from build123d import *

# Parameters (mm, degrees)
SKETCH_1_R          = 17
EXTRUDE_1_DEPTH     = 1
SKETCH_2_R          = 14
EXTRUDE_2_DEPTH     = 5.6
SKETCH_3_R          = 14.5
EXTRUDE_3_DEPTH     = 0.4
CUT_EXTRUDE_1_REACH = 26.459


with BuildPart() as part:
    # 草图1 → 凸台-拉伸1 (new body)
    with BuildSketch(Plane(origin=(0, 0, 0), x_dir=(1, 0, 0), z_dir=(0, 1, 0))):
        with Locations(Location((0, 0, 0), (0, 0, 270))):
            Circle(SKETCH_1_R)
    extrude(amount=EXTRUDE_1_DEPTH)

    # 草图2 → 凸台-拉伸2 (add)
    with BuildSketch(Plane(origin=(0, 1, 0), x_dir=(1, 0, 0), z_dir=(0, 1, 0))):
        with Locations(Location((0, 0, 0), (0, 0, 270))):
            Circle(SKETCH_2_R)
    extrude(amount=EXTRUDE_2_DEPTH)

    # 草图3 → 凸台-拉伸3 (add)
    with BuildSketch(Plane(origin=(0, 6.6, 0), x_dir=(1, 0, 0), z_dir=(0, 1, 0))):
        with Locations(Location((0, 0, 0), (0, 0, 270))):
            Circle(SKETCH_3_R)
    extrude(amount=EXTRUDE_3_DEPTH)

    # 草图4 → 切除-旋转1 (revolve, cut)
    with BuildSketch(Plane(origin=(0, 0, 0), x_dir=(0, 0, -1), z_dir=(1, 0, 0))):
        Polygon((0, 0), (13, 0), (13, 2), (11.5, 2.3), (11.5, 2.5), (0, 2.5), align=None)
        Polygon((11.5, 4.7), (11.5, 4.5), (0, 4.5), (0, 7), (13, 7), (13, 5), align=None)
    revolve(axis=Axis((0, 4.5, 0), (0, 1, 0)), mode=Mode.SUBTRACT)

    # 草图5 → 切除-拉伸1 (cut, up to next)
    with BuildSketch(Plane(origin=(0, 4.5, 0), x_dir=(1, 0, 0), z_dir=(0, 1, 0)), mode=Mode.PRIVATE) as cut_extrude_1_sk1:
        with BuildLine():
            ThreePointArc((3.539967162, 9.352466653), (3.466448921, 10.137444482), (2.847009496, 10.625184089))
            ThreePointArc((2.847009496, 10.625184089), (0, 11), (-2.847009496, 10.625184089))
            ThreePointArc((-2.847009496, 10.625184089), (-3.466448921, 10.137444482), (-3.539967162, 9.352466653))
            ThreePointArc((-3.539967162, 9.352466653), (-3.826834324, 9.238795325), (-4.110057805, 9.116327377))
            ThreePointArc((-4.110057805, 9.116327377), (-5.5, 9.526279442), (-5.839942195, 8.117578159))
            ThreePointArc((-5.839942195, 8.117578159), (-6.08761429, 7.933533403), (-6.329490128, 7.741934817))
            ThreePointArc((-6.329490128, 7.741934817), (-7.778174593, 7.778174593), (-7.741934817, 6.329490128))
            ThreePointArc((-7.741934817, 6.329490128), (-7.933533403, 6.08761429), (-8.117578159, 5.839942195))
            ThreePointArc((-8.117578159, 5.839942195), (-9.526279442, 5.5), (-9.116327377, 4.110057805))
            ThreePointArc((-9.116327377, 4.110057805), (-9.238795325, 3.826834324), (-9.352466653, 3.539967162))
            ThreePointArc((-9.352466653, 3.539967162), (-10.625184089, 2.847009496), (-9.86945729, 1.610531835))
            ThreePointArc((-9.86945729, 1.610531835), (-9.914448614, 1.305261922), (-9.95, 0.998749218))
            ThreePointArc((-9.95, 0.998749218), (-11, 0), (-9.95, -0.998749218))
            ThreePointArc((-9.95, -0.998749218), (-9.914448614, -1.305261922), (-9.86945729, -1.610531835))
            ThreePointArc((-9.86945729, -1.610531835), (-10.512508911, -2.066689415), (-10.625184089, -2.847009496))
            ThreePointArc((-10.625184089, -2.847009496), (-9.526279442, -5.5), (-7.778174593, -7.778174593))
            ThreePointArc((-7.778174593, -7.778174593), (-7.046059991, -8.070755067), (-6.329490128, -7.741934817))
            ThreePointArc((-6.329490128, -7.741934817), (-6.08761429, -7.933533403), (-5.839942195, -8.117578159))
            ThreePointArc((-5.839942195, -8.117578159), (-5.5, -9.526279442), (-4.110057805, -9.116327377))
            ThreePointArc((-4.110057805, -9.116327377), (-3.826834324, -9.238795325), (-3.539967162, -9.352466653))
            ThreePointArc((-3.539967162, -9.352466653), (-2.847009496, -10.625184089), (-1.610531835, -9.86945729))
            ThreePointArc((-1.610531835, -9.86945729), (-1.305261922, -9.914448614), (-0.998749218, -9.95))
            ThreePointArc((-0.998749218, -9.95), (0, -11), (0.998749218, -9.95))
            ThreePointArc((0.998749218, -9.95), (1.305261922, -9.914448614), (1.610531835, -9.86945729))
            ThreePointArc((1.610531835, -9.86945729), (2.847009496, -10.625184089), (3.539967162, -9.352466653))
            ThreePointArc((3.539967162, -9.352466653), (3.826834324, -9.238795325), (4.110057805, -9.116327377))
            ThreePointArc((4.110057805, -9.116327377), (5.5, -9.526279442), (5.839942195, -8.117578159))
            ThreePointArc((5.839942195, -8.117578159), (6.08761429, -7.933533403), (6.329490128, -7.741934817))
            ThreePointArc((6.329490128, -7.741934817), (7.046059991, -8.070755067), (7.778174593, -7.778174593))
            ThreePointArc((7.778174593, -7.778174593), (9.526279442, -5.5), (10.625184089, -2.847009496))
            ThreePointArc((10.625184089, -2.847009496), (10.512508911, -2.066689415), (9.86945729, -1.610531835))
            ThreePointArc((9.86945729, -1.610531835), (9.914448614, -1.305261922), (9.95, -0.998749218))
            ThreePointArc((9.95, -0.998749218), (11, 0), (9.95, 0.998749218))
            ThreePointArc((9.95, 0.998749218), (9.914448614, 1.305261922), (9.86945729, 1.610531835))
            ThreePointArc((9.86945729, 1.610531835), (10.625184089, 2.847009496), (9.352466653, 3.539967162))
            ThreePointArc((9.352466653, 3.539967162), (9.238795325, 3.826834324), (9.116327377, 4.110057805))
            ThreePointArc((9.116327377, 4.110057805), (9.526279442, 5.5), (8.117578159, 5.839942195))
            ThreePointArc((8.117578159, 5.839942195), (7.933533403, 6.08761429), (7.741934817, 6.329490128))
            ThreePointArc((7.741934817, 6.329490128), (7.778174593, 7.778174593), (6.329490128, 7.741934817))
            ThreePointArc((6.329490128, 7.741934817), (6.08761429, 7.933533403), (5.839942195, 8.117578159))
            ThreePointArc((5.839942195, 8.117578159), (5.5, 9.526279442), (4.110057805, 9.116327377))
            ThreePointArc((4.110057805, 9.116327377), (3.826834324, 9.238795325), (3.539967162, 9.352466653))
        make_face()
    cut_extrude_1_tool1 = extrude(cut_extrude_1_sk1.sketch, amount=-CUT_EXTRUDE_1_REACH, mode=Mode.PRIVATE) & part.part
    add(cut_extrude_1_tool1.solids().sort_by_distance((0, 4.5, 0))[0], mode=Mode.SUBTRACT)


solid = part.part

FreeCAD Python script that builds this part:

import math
import FreeCAD as App
import Part
import Sketcher


def add_polygon(sketch, points):
    """Adds a closed chain of lines whose ends are joined by coincident constraints."""
    first, n = sketch.GeometryCount, len(points)
    for a, b in zip(points, points[1:] + points[:1]):
        sketch.addGeometry(Part.LineSegment(App.Vector(*a, 0), App.Vector(*b, 0)), False)
    for i in range(n):
        sketch.addConstraint(Sketcher.Constraint("Coincident", first + i, 2, first + (i + 1) % n, 1))

doc = App.newDocument("Part")
body = doc.addObject("PartDesign::Body", "Body")

sketch1 = body.newObject("Sketcher::SketchObject", "Sketch")
sketch1.AttachmentSupport = (doc.getObject("XZ_Plane"), [""])
sketch1.MapMode = "FlatFace"
sketch1.addGeometry(Part.Circle(App.Vector(0, 0, 0), App.Vector(0, 0, 1), 17), False)
sketch1.addConstraint([
    Sketcher.Constraint("Coincident", 0, 3, -1, 1),
    Sketcher.Constraint("Diameter", 0, 34.0),
])
pad1 = body.newObject("PartDesign::Pad", "Pad")
pad1.Profile = sketch1
pad1.Length = 1
pad1.Reversed = True

sketch2 = body.newObject("Sketcher::SketchObject", "Sketch001")
sketch2.AttachmentSupport = (doc.getObject("XZ_Plane"), [""])
sketch2.MapMode = "FlatFace"
sketch2.AttachmentOffset = App.Placement(App.Vector(0, 0, -1), App.Rotation())
sketch2.addGeometry(Part.Circle(App.Vector(0, 0, 0), App.Vector(0, 0, 1), 14), False)
sketch2.addConstraint([
    Sketcher.Constraint("Coincident", 0, 3, -1, 1),
    Sketcher.Constraint("Diameter", 0, 28.0),
])
pad2 = body.newObject("PartDesign::Pad", "Pad001")
pad2.Profile = sketch2
pad2.Length = 5.6
pad2.Reversed = True

sketch3 = body.newObject("Sketcher::SketchObject", "Sketch002")
sketch3.AttachmentSupport = (doc.getObject("XZ_Plane"), [""])
sketch3.MapMode = "FlatFace"
sketch3.AttachmentOffset = App.Placement(App.Vector(0, 0, -6.6), App.Rotation())
sketch3.addGeometry(Part.Circle(App.Vector(0, 0, 0), App.Vector(0, 0, 1), 14), False)
sketch3.addConstraint([
    Sketcher.Constraint("Coincident", 0, 3, -1, 1),
    Sketcher.Constraint("Diameter", 0, 29.0),
])
pad3 = body.newObject("PartDesign::Pad", "Pad002")
pad3.Profile = sketch3
pad3.Length = 0.4
pad3.Reversed = True

sketch4 = body.newObject("Sketcher::SketchObject", "Sketch003")
sketch4.AttachmentSupport = (doc.getObject("YZ_Plane"), [""])
sketch4.MapMode = "FlatFace"
add_polygon(sketch4, [(0, 0), (0, -13), (2, -13), (2.3, -11.5), (2.5, -11.5), (2.5, 0)])
add_polygon(sketch4, [(4.5, -11.5), (4.7, -11.5), (5, -13), (7, -13), (7, 0), (4.5, 0)])
sketch4.addConstraint([
    Sketcher.Constraint("Vertical", 0),
    Sketcher.Constraint("Horizontal", 1),
    Sketcher.Constraint("Horizontal", 3),
    Sketcher.Constraint("Vertical", 4),
    Sketcher.Constraint("Horizontal", 5),
    Sketcher.Constraint("Horizontal", 6),
    Sketcher.Constraint("Horizontal", 8),
    Sketcher.Constraint("Vertical", 9),
    Sketcher.Constraint("Horizontal", 10),
    Sketcher.Constraint("Vertical", 11),
    Sketcher.Constraint("Coincident", 5, 2, -1, 1),
    Sketcher.Constraint("PointOnObject", 9, 2, -1),
    Sketcher.Constraint("Horizontal", 3, 2, 6, 2),
    Sketcher.Constraint("Horizontal", 1, 2, 7, 2),
    Sketcher.Constraint("Equal", 3, 6),
    Sketcher.Constraint("Equal", 1, 8),
    Sketcher.Constraint("Equal", 5, 10),
    Sketcher.Constraint("DistanceX", 1, 1, 1, 2, 2.0),
    Sketcher.Constraint("DistanceY", 0, 2, 0, 1, 13.0),
    Sketcher.Constraint("DistanceX", 3, 1, 3, 2, 0.2),
    Sketcher.Constraint("DistanceX", 5, 2, 5, 1, 2.5),
    Sketcher.Constraint("DistanceY", 4, 1, 4, 2, 11.5),
    Sketcher.Constraint("DistanceX", -1, 1, 7, 2, 5.0),
])
groove = body.newObject("PartDesign::Groove", "Groove")
groove.Profile = sketch4
groove.ReferenceAxis = (sketch4, ["H_Axis"])
groove.Angle = 360

sketch5 = body.newObject("Sketcher::SketchObject", "Sketch004")
sketch5.AttachmentSupport = (doc.getObject("XZ_Plane"), [""])
sketch5.MapMode = "FlatFace"
sketch5.AttachmentOffset = App.Placement(App.Vector(0, 0, -4.5), App.Rotation())
sketch5.addGeometry([
    Part.ArcOfCircle(Part.Circle(App.Vector(2.6, -9.7, 0), App.Vector(0, 0, 1), 1), math.radians(-75), math.radians(18)),
    Part.ArcOfCircle(Part.Circle(App.Vector(0, 0, 0), App.Vector(0, 0, 1), 11), math.radians(-105), math.radians(-75)),
    Part.ArcOfCircle(Part.Circle(App.Vector(-2.6, -9.7, 0), App.Vector(0, 0, 1), 1), math.radians(162), math.radians(255)),
    Part.ArcOfCircle(Part.Circle(App.Vector(0, 0, 0), App.Vector(0, 0, 1), 10), math.radians(-114.27), math.radians(-110.73)),
    Part.ArcOfCircle(Part.Circle(App.Vector(-5, -8.7, 0), App.Vector(0, 0, 1), 1), math.radians(147), math.radians(333)),
    Part.ArcOfCircle(Part.Circle(App.Vector(0, 0, 0), App.Vector(0, 0, 1), 10), math.radians(-129.27), math.radians(-125.73)),
    Part.ArcOfCircle(Part.Circle(App.Vector(-7.1, -7.1, 0), App.Vector(0, 0, 1), 1), math.radians(132), math.radians(318)),
    Part.ArcOfCircle(Part.Circle(App.Vector(0, 0, 0), App.Vector(0, 0, 1), 10), math.radians(-144.27), math.radians(-140.73)),
    Part.ArcOfCircle(Part.Circle(App.Vector(-8.7, -5, 0), App.Vector(0, 0, 1), 1), math.radians(117), math.radians(303)),
    Part.ArcOfCircle(Part.Circle(App.Vector(0, 0, 0), App.Vector(0, 0, 1), 10), math.radians(-159.27), math.radians(-155.73)),
    Part.ArcOfCircle(Part.Circle(App.Vector(-9.7, -2.6, 0), App.Vector(0, 0, 1), 1), math.radians(102), math.radians(288)),
    Part.ArcOfCircle(Part.Circle(App.Vector(0, 0, 0), App.Vector(0, 0, 1), 10), math.radians(-174.27), math.radians(-170.73)),
    Part.ArcOfCircle(Part.Circle(App.Vector(-10, 0, 0), App.Vector(0, 0, 1), 1), math.radians(87), math.radians(273)),
    Part.ArcOfCircle(Part.Circle(App.Vector(0, 0, 0), App.Vector(0, 0, 1), 10), math.radians(170.73), math.radians(174.27)),
    Part.ArcOfCircle(Part.Circle(App.Vector(-9.7, 2.6, 0), App.Vector(0, 0, 1), 1), math.radians(165), math.radians(258)),
    Part.ArcOfCircle(Part.Circle(App.Vector(0, 0, 0), App.Vector(0, 0, 1), 11), math.radians(135), math.radians(165)),
    Part.ArcOfCircle(Part.Circle(App.Vector(-7.1, 7.1, 0), App.Vector(0, 0, 1), 1), math.radians(42), math.radians(135)),
    Part.ArcOfCircle(Part.Circle(App.Vector(0, 0, 0), App.Vector(0, 0, 1), 10), math.radians(125.73), math.radians(129.27)),
    Part.ArcOfCircle(Part.Circle(App.Vector(-5, 8.7, 0), App.Vector(0, 0, 1), 1), math.radians(27), math.radians(213)),
    Part.ArcOfCircle(Part.Circle(App.Vector(0, 0, 0), App.Vector(0, 0, 1), 10), math.radians(110.73), math.radians(114.27)),
    Part.ArcOfCircle(Part.Circle(App.Vector(-2.6, 9.7, 0), App.Vector(0, 0, 1), 1), math.radians(12), math.radians(198)),
    Part.ArcOfCircle(Part.Circle(App.Vector(0, 0, 0), App.Vector(0, 0, 1), 10), math.radians(95.73), math.radians(99.27)),
    Part.ArcOfCircle(Part.Circle(App.Vector(0, 10, 0), App.Vector(0, 0, 1), 1), math.radians(-3), math.radians(183)),
    Part.ArcOfCircle(Part.Circle(App.Vector(0, 0, 0), App.Vector(0, 0, 1), 10), math.radians(80.73), math.radians(84.27)),
    Part.ArcOfCircle(Part.Circle(App.Vector(2.6, 9.7, 0), App.Vector(0, 0, 1), 1), math.radians(-18), math.radians(168)),
    Part.ArcOfCircle(Part.Circle(App.Vector(0, 0, 0), App.Vector(0, 0, 1), 10), math.radians(65.73), math.radians(69.27)),
    Part.ArcOfCircle(Part.Circle(App.Vector(5, 8.7, 0), App.Vector(0, 0, 1), 1), math.radians(-33), math.radians(153)),
    Part.ArcOfCircle(Part.Circle(App.Vector(0, 0, 0), App.Vector(0, 0, 1), 10), math.radians(50.73), math.radians(54.27)),
    Part.ArcOfCircle(Part.Circle(App.Vector(7.1, 7.1, 0), App.Vector(0, 0, 1), 1), math.radians(45), math.radians(138)),
    Part.ArcOfCircle(Part.Circle(App.Vector(0, 0, 0), App.Vector(0, 0, 1), 11), math.radians(15), math.radians(45)),
    Part.ArcOfCircle(Part.Circle(App.Vector(9.7, 2.6, 0), App.Vector(0, 0, 1), 1), math.radians(-78), math.radians(15)),
    Part.ArcOfCircle(Part.Circle(App.Vector(0, 0, 0), App.Vector(0, 0, 1), 10), math.radians(5.73), math.radians(9.27)),
    Part.ArcOfCircle(Part.Circle(App.Vector(10, 0, 0), App.Vector(0, 0, 1), 1), math.radians(-93), math.radians(93)),
    Part.ArcOfCircle(Part.Circle(App.Vector(0, 0, 0), App.Vector(0, 0, 1), 10), math.radians(-9.27), math.radians(-5.73)),
    Part.ArcOfCircle(Part.Circle(App.Vector(9.7, -2.6, 0), App.Vector(0, 0, 1), 1), math.radians(-108), math.radians(78)),
    Part.ArcOfCircle(Part.Circle(App.Vector(0, 0, 0), App.Vector(0, 0, 1), 10), math.radians(-24.27), math.radians(-20.73)),
    Part.ArcOfCircle(Part.Circle(App.Vector(8.7, -5, 0), App.Vector(0, 0, 1), 1), math.radians(-123), math.radians(63)),
    Part.ArcOfCircle(Part.Circle(App.Vector(0, 0, 0), App.Vector(0, 0, 1), 10), math.radians(-39.27), math.radians(-35.73)),
    Part.ArcOfCircle(Part.Circle(App.Vector(7.1, -7.1, 0), App.Vector(0, 0, 1), 1), math.radians(-138), math.radians(48)),
    Part.ArcOfCircle(Part.Circle(App.Vector(0, 0, 0), App.Vector(0, 0, 1), 10), math.radians(-54.27), math.radians(-50.73)),
    Part.ArcOfCircle(Part.Circle(App.Vector(5, -8.7, 0), App.Vector(0, 0, 1), 1), math.radians(-153), math.radians(33)),
    Part.ArcOfCircle(Part.Circle(App.Vector(0, 0, 0), App.Vector(0, 0, 1), 10), math.radians(-69.27), math.radians(-65.73)),
], False)
sketch5.addConstraint([
    Sketcher.Constraint("Tangent", 0, 1, 1, 2),
    Sketcher.Constraint("Tangent", 1, 1, 2, 2),
    Sketcher.Constraint("Coincident", 2, 1, 3, 2),
    Sketcher.Constraint("Coincident", 3, 1, 4, 2),
    Sketcher.Constraint("Coincident", 4, 1, 5, 2),
    Sketcher.Constraint("Coincident", 5, 1, 6, 2),
    Sketcher.Constraint("Coincident", 6, 1, 7, 2),
    Sketcher.Constraint("Coincident", 7, 1, 8, 2),
    Sketcher.Constraint("Coincident", 8, 1, 9, 2),
    Sketcher.Constraint("Coincident", 9, 1, 10, 2),
    Sketcher.Constraint("Coincident", 10, 1, 11, 2),
    Sketcher.Constraint("Coincident", 11, 1, 12, 2),
    Sketcher.Constraint("Coincident", 12, 1, 13, 2),
    Sketcher.Constraint("Coincident", 13, 1, 14, 2),
    Sketcher.Constraint("Tangent", 14, 1, 15, 2),
    Sketcher.Constraint("Tangent", 15, 1, 16, 2),
    Sketcher.Constraint("Coincident", 16, 1, 17, 2),
    Sketcher.Constraint("Coincident", 17, 1, 18, 2),
    Sketcher.Constraint("Coincident", 18, 1, 19, 2),
    Sketcher.Constraint("Coincident", 19, 1, 20, 2),
    Sketcher.Constraint("Coincident", 20, 1, 21, 2),
    Sketcher.Constraint("Coincident", 21, 1, 22, 2),
    Sketcher.Constraint("Coincident", 22, 1, 23, 2),
    Sketcher.Constraint("Coincident", 23, 1, 24, 2),
    Sketcher.Constraint("Coincident", 24, 1, 25, 2),
    Sketcher.Constraint("Coincident", 25, 1, 26, 2),
    Sketcher.Constraint("Coincident", 26, 1, 27, 2),
    Sketcher.Constraint("Coincident", 27, 1, 28, 2),
    Sketcher.Constraint("Tangent", 28, 1, 29, 2),
    Sketcher.Constraint("Tangent", 29, 1, 30, 2),
    Sketcher.Constraint("Coincident", 30, 1, 31, 2),
    Sketcher.Constraint("Coincident", 31, 1, 32, 2),
    Sketcher.Constraint("Coincident", 32, 1, 33, 2),
    Sketcher.Constraint("Coincident", 33, 1, 34, 2),
    Sketcher.Constraint("Coincident", 34, 1, 35, 2),
    Sketcher.Constraint("Coincident", 35, 1, 36, 2),
    Sketcher.Constraint("Coincident", 36, 1, 37, 2),
    Sketcher.Constraint("Coincident", 37, 1, 38, 2),
    Sketcher.Constraint("Coincident", 38, 1, 39, 2),
    Sketcher.Constraint("Coincident", 39, 1, 40, 2),
    Sketcher.Constraint("Coincident", 40, 1, 41, 2),
    Sketcher.Constraint("Coincident", 41, 1, 0, 2),
    Sketcher.Constraint("Coincident", 1, 3, -1, 1),
    Sketcher.Constraint("Coincident", 3, 3, -1, 1),
    Sketcher.Constraint("Coincident", 5, 3, -1, 1),
    Sketcher.Constraint("Coincident", 7, 3, -1, 1),
    Sketcher.Constraint("Coincident", 9, 3, -1, 1),
    Sketcher.Constraint("Coincident", 11, 3, -1, 1),
    Sketcher.Constraint("Coincident", 13, 3, -1, 1),
    Sketcher.Constraint("Coincident", 15, 3, -1, 1),
    Sketcher.Constraint("Coincident", 17, 3, -1, 1),
    Sketcher.Constraint("Coincident", 19, 3, -1, 1),
    Sketcher.Constraint("Coincident", 21, 3, -1, 1),
    Sketcher.Constraint("Coincident", 23, 3, -1, 1),
    Sketcher.Constraint("Coincident", 25, 3, -1, 1),
    Sketcher.Constraint("Coincident", 27, 3, -1, 1),
    Sketcher.Constraint("Coincident", 29, 3, -1, 1),
    Sketcher.Constraint("Coincident", 31, 3, -1, 1),
    Sketcher.Constraint("Coincident", 33, 3, -1, 1),
    Sketcher.Constraint("Coincident", 35, 3, -1, 1),
    Sketcher.Constraint("Coincident", 37, 3, -1, 1),
    Sketcher.Constraint("Coincident", 39, 3, -1, 1),
    Sketcher.Constraint("Coincident", 41, 3, -1, 1),
    Sketcher.Constraint("Equal", 0, 2),
    Sketcher.Constraint("Equal", 2, 4),
    Sketcher.Constraint("Equal", 3, 5),
    Sketcher.Constraint("Equal", 4, 6),
    Sketcher.Constraint("Equal", 5, 7),
    Sketcher.Constraint("Equal", 6, 8),
    Sketcher.Constraint("Equal", 7, 9),
    Sketcher.Constraint("Equal", 8, 10),
    Sketcher.Constraint("Equal", 9, 11),
    Sketcher.Constraint("Equal", 10, 12),
    Sketcher.Constraint("Equal", 11, 13),
    Sketcher.Constraint("Equal", 12, 14),
    Sketcher.Constraint("Equal", 1, 15),
    Sketcher.Constraint("Equal", 14, 16),
    Sketcher.Constraint("Equal", 13, 17),
    Sketcher.Constraint("Equal", 16, 18),
    Sketcher.Constraint("Equal", 17, 19),
    Sketcher.Constraint("Equal", 18, 20),
    Sketcher.Constraint("Equal", 19, 21),
    Sketcher.Constraint("Equal", 20, 22),
    Sketcher.Constraint("Equal", 21, 23),
    Sketcher.Constraint("Equal", 22, 24),
    Sketcher.Constraint("Equal", 23, 25),
    Sketcher.Constraint("Equal", 24, 26),
    Sketcher.Constraint("Equal", 25, 27),
    Sketcher.Constraint("Equal", 26, 28),
    Sketcher.Constraint("Equal", 15, 29),
    Sketcher.Constraint("Equal", 28, 30),
    Sketcher.Constraint("Equal", 27, 31),
    Sketcher.Constraint("Equal", 30, 32),
    Sketcher.Constraint("Equal", 31, 33),
    Sketcher.Constraint("Equal", 32, 34),
    Sketcher.Constraint("Equal", 33, 35),
    Sketcher.Constraint("Equal", 34, 36),
    Sketcher.Constraint("Equal", 35, 37),
    Sketcher.Constraint("Equal", 36, 38),
    Sketcher.Constraint("Equal", 37, 39),
    Sketcher.Constraint("Equal", 38, 40),
    Sketcher.Constraint("Equal", 39, 41),
    Sketcher.Constraint("Symmetric", 0, 3, 20, 3, -1, 1),
    Sketcher.Constraint("Symmetric", 2, 3, 24, 3, -1, 1),
    Sketcher.Constraint("Symmetric", 4, 3, 26, 3, -1, 1),
    Sketcher.Constraint("Symmetric", 6, 3, 28, 3, -1, 1),
    Sketcher.Constraint("Symmetric", 10, 3, 30, 3, -1, 1),
    Sketcher.Constraint("Symmetric", 12, 3, 32, 3, -1, 1),
    Sketcher.Constraint("Symmetric", 14, 3, 34, 3, -1, 1),
    Sketcher.Constraint("Symmetric", 16, 3, 38, 3, -1, 1),
    Sketcher.Constraint("Symmetric", 18, 3, 40, 3, -1, 1),
    Sketcher.Constraint("Symmetric", 18, 3, 26, 3, -2),
    Sketcher.Constraint("Symmetric", 8, 3, 36, 3, -2),
    Sketcher.Constraint("PointOnObject", 12, 3, -1),
    Sketcher.Constraint("PointOnObject", 22, 3, -2),
    Sketcher.Constraint("Horizontal", 0, 3, 2, 3),
    Sketcher.Constraint("Horizontal", 16, 3, 28, 3),
    Sketcher.Constraint("Horizontal", 14, 3, 30, 3),
    Sketcher.Constraint("Radius", 0, 1.0),
    Sketcher.Constraint("Radius", 1, 11.0),
    Sketcher.Constraint("Radius", 3, 10.0),
    Sketcher.Constraint("DistanceX", 4, 3, -1, 1, 5.0),
    Sketcher.Constraint("DistanceY", 8, 3, -1, 1, 5.0),
    Sketcher.Constraint("DistanceX", 12, 3, -1, 1, 10.0),
    Sketcher.Constraint("DistanceY", -1, 1, 22, 3, 10.0),
    Sketcher.Constraint("DistanceX", -1, 1, 0, 3, 2.58819),
    Sketcher.Constraint("DistanceX", 10, 3, -1, 1, 9.659258),
    Sketcher.Constraint("DistanceY", 4, 1, -1, 1, 8.117578),
    Sketcher.Constraint("DistanceX", 5, 1, -1, 1, 6.32949),
    Sketcher.Constraint("DistanceX", 7, 1, -1, 1, 8.117578),
])
pocket1 = body.newObject("PartDesign::Pocket", "Pocket")
pocket1.Profile = sketch5
pocket1.Type = "UpToFirst"
pocket1.Reversed = True

doc.recompute()
